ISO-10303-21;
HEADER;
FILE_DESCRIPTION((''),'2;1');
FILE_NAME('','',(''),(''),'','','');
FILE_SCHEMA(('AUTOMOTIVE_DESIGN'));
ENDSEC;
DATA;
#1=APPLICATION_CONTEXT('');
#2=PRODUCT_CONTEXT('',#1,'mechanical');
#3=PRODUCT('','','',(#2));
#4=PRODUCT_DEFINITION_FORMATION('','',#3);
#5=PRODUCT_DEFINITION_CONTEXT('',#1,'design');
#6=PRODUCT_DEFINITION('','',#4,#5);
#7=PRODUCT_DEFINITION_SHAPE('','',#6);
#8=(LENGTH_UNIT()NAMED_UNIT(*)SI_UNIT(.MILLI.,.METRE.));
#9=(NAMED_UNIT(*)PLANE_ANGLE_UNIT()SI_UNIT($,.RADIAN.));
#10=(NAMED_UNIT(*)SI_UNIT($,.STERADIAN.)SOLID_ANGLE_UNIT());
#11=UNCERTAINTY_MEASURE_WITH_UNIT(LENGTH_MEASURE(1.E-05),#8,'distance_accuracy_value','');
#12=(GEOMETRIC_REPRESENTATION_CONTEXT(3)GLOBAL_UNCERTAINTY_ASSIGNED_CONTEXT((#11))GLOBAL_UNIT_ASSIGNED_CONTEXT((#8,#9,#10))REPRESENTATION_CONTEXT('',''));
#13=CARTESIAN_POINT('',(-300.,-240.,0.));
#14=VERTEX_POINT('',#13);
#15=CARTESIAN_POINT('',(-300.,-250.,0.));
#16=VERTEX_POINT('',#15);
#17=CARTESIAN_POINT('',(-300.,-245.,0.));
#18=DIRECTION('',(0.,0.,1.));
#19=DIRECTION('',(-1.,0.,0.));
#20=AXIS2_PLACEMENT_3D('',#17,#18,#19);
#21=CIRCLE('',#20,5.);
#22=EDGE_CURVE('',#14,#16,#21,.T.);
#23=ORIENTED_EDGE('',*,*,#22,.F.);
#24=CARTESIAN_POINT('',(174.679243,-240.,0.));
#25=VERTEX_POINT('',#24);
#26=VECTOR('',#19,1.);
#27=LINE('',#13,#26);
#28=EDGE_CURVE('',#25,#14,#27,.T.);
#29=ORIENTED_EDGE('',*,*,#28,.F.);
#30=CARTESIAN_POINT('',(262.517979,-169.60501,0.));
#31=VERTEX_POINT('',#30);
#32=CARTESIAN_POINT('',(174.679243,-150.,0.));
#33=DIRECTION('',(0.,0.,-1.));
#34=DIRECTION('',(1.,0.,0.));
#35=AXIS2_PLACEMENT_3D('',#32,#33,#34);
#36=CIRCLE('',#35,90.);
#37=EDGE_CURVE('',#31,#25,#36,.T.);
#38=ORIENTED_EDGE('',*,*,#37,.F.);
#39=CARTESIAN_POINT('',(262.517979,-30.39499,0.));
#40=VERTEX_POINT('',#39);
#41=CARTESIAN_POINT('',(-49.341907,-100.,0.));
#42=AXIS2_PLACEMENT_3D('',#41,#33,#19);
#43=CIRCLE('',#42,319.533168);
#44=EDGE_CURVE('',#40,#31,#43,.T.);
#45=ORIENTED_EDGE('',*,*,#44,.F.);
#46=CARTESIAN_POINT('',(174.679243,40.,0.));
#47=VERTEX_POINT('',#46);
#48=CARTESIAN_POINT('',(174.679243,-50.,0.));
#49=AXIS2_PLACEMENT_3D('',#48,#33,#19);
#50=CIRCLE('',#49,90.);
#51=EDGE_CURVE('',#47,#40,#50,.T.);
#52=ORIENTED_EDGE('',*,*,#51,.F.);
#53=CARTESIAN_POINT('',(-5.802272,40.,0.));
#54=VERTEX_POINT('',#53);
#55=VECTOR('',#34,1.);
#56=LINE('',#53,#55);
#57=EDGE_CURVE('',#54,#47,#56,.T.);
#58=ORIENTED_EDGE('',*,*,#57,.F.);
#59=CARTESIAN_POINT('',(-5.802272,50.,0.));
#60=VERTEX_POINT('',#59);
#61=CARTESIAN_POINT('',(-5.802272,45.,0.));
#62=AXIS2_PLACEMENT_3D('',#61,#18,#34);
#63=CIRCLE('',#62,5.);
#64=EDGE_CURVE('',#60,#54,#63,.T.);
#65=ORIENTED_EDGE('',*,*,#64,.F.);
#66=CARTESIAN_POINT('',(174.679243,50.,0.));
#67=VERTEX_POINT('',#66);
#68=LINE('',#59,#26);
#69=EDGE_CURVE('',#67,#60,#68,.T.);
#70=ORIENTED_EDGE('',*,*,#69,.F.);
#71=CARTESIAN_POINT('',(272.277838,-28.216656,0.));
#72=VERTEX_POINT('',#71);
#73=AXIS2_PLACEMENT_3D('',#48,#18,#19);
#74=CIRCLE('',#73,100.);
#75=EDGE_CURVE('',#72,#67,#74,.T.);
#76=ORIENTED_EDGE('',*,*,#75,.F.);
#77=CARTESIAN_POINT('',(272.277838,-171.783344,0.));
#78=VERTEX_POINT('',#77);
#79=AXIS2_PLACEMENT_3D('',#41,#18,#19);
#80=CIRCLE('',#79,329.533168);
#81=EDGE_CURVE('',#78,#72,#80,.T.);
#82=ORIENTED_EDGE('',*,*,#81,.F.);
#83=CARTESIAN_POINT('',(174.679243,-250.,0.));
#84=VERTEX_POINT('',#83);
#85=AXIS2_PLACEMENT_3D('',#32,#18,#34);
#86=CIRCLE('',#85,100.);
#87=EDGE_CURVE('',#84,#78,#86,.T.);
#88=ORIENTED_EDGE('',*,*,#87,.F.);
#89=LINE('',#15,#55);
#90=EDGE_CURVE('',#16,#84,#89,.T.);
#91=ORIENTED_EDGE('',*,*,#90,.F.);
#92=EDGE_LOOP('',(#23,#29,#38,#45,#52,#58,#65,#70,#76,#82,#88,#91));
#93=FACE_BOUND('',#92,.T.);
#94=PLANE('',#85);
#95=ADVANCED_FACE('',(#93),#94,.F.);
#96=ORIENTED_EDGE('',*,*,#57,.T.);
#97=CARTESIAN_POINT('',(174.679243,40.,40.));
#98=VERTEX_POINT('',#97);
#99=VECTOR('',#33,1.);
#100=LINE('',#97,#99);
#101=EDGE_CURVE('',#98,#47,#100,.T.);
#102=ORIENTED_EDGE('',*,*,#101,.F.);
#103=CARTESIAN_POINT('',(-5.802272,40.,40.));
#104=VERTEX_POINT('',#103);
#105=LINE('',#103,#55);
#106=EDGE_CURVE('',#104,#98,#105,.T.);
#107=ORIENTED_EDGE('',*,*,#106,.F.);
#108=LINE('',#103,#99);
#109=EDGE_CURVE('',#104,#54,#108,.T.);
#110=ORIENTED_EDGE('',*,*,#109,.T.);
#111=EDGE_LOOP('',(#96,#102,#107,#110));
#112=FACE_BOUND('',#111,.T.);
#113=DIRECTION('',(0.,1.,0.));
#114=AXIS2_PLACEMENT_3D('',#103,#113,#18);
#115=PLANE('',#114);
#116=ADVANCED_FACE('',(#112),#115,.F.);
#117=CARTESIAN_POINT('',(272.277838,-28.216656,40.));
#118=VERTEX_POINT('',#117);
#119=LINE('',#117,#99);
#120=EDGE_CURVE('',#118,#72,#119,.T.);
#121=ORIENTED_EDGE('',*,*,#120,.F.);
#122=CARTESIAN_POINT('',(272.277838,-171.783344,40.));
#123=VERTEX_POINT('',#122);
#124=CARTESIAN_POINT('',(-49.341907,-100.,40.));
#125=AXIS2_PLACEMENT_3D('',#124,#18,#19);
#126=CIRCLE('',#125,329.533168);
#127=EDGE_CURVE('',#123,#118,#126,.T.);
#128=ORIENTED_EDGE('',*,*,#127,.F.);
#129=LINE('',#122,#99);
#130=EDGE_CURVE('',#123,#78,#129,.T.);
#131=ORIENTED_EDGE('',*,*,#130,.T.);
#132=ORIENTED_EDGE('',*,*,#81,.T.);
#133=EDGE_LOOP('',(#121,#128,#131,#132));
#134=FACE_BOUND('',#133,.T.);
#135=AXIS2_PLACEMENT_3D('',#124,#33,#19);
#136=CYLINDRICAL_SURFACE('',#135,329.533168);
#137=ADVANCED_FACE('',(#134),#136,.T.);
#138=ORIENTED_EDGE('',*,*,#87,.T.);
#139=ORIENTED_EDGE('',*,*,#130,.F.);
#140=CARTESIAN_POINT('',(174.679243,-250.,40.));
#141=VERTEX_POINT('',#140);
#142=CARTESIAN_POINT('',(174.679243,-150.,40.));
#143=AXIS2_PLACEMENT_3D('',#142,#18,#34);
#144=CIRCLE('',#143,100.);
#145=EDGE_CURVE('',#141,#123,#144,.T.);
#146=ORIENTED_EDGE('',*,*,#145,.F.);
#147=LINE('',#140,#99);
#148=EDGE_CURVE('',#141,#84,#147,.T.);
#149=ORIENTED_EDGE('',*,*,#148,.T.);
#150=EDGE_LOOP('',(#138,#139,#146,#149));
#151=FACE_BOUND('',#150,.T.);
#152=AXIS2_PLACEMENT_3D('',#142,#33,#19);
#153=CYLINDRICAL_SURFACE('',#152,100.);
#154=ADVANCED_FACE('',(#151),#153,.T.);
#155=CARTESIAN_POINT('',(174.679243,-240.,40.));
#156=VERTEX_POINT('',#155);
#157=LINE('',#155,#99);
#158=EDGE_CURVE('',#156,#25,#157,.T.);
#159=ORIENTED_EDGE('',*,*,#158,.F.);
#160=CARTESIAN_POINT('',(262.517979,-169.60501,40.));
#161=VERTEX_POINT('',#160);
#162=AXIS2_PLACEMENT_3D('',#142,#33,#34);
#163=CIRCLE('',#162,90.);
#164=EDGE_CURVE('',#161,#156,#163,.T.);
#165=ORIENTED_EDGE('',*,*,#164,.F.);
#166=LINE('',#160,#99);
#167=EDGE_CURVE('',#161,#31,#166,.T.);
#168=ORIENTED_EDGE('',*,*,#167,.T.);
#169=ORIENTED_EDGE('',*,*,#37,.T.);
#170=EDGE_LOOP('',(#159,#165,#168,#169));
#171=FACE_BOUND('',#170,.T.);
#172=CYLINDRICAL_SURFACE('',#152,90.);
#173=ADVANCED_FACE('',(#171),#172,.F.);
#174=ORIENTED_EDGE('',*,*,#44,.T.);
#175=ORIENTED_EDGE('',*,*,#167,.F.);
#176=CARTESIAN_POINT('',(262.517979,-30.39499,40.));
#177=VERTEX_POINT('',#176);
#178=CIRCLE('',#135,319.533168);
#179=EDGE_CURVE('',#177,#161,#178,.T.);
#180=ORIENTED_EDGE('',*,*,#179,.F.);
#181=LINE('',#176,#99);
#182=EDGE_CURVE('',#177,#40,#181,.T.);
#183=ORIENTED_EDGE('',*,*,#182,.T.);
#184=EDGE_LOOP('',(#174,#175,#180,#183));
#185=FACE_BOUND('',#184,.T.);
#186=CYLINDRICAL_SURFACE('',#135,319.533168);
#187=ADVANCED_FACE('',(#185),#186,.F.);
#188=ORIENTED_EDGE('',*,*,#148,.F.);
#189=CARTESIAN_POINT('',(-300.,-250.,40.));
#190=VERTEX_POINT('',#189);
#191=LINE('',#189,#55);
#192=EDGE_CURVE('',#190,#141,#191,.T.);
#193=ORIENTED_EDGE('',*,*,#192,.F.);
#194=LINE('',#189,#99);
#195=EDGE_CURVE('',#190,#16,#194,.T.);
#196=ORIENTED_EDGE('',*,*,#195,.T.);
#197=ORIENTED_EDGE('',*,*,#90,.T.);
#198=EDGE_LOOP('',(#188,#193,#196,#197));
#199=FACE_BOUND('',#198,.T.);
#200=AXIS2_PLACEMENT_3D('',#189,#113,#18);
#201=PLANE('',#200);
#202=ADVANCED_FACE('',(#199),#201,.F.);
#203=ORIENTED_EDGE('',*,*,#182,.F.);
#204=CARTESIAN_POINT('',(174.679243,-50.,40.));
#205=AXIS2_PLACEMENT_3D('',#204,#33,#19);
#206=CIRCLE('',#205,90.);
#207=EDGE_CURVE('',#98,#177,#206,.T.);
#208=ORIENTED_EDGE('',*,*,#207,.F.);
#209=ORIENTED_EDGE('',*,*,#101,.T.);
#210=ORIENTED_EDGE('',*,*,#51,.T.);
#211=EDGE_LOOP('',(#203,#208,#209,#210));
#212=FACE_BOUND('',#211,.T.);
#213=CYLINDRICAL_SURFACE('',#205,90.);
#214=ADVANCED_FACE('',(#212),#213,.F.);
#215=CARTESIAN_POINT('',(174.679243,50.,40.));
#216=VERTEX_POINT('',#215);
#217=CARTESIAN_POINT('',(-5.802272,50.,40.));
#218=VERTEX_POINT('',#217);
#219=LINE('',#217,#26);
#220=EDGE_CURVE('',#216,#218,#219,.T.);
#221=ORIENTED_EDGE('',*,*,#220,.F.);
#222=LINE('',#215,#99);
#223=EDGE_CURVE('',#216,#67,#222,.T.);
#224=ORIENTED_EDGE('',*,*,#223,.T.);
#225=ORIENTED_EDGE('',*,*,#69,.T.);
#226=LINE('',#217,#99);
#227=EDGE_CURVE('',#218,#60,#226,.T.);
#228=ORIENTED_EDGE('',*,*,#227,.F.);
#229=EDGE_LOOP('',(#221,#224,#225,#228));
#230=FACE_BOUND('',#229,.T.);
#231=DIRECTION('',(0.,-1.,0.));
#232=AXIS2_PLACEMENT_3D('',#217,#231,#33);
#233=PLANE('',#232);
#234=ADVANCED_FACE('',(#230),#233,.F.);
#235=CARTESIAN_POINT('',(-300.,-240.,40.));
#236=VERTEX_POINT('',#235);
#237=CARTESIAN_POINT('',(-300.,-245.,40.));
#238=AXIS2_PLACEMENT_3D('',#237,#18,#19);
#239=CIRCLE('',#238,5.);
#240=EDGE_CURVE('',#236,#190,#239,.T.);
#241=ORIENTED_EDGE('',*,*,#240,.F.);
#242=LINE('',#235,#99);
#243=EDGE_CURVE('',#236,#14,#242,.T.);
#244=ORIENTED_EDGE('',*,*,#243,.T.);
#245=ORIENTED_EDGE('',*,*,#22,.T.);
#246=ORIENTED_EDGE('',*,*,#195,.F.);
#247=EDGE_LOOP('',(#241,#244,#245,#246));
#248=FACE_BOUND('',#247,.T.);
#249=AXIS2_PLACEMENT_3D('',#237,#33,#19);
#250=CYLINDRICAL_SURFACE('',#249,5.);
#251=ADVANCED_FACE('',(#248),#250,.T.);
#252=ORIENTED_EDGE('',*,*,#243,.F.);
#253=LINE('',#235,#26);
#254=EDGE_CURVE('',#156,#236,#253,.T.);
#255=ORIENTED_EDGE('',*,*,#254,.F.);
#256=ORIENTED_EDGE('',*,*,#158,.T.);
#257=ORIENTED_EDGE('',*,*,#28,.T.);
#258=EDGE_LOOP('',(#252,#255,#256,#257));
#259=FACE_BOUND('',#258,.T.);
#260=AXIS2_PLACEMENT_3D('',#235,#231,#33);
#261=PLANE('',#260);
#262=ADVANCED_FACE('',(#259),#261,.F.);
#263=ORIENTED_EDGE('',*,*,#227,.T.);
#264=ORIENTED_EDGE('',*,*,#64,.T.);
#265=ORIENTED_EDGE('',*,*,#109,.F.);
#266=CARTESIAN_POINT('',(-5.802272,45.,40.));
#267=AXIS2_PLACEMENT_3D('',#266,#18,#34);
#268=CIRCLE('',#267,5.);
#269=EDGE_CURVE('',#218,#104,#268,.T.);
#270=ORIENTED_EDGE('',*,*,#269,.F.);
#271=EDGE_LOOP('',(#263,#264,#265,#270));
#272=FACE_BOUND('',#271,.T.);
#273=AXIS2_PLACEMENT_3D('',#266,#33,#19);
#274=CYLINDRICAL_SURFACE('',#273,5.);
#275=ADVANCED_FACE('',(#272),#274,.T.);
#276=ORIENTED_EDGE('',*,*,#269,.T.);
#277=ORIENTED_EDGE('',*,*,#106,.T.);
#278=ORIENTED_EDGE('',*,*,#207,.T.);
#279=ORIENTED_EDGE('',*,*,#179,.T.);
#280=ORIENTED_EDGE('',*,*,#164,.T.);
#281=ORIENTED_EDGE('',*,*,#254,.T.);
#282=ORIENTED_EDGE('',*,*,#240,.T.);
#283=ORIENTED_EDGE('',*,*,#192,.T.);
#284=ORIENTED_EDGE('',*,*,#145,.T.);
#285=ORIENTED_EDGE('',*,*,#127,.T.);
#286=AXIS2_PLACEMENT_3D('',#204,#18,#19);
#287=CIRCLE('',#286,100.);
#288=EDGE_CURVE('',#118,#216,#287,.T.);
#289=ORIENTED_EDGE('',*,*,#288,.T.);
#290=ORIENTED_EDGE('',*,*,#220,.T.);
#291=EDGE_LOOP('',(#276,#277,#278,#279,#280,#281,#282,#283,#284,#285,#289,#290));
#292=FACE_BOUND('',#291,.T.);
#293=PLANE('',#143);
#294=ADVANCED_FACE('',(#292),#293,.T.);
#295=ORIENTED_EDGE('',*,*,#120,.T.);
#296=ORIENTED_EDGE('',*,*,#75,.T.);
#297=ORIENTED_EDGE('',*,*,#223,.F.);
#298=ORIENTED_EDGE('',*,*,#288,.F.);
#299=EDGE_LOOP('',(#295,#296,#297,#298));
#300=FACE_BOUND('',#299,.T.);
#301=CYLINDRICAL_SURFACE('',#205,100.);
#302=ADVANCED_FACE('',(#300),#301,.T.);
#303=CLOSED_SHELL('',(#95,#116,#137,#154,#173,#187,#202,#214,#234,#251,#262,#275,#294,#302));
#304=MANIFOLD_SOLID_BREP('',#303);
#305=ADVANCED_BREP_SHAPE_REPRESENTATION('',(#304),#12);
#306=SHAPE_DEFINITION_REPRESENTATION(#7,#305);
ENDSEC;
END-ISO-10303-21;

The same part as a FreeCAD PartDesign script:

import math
import FreeCAD as App
import Part
import Sketcher

V = App.Vector

doc = App.newDocument("Part")
body = doc.addObject("PartDesign::Body", "Body")

# Sketch on XY plane
sketch1 = body.newObject("Sketcher::SketchObject", "Sketch")
sketch1.AttachmentSupport = (doc.getObject("XY_Plane"), [""])
sketch1.MapMode = "FlatFace"
sketch1.addGeometry(Part.LineSegment(V(175, 50, 0), V(-6, 50, 0)), False)
sketch1.addGeometry(Part.ArcOfCircle(Part.Circle(V(-6, 45, 0), V(0, 0, 1), 5), math.radians(90), math.radians(270)), False)
sketch1.addGeometry(Part.LineSegment(V(-6, 40, 0), V(175, 40, 0)), False)
sketch1.addGeometry(Part.ArcOfCircle(Part.Circle(V(175, -50, 0), V(0, 0, 1), 90), math.radians(13), math.radians(90)), False)
sketch1.addGeometry(Part.ArcOfCircle(Part.Circle(V(-49, -100, 0), V(0, 0, 1), 320), math.radians(-13), math.radians(13)), False)
sketch1.addGeometry(Part.ArcOfCircle(Part.Circle(V(175, -150, 0), V(0, 0, 1), 90), math.radians(-90), math.radians(-13)), False)
sketch1.addGeometry(Part.LineSegment(V(175, -240, 0), V(-300, -240, 0)), False)
sketch1.addGeometry(Part.ArcOfCircle(Part.Circle(V(-300, -245, 0), V(0, 0, 1), 5), math.radians(90), math.radians(270)), False)
sketch1.addGeometry(Part.LineSegment(V(-300, -250, 0), V(175, -250, 0)), False)
sketch1.addGeometry(Part.ArcOfCircle(Part.Circle(V(175, -150, 0), V(0, 0, 1), 100), math.radians(-90), math.radians(-13)), False)
sketch1.addGeometry(Part.ArcOfCircle(Part.Circle(V(-49, -100, 0), V(0, 0, 1), 330), math.radians(-13), math.radians(13)), False)
sketch1.addGeometry(Part.ArcOfCircle(Part.Circle(V(175, -50, 0), V(0, 0, 1), 100), math.radians(13), math.radians(90)), False)
sketch1.addConstraint(Sketcher.Constraint("Tangent", 0, 2, 1, 1))
sketch1.addConstraint(Sketcher.Constraint("Tangent", 1, 2, 2, 1))
sketch1.addConstraint(Sketcher.Constraint("Tangent", 2, 2, 3, 2))
sketch1.addConstraint(Sketcher.Constraint("Tangent", 3, 1, 4, 2))
sketch1.addConstraint(Sketcher.Constraint("Tangent", 4, 1, 5, 2))
sketch1.addConstraint(Sketcher.Constraint("Tangent", 5, 1, 6, 1))
sketch1.addConstraint(Sketcher.Constraint("Tangent", 6, 2, 7, 1))
sketch1.addConstraint(Sketcher.Constraint("Tangent", 7, 2, 8, 1))
sketch1.addConstraint(Sketcher.Constraint("Tangent", 8, 2, 9, 1))
sketch1.addConstraint(Sketcher.Constraint("Tangent", 9, 2, 10, 1))
sketch1.addConstraint(Sketcher.Constraint("Tangent", 10, 2, 11, 1))
sketch1.addConstraint(Sketcher.Constraint("Tangent", 11, 2, 0, 1))
sketch1.addConstraint(Sketcher.Constraint("Horizontal", 0))
sketch1.addConstraint(Sketcher.Constraint("Horizontal", 2))
sketch1.addConstraint(Sketcher.Constraint("Horizontal", 6))
sketch1.addConstraint(Sketcher.Constraint("Horizontal", 8))
sketch1.addConstraint(Sketcher.Constraint("Coincident", 9, 3, 5, 3))
sketch1.addConstraint(Sketcher.Constraint("Coincident", 10, 3, 4, 3))
sketch1.addConstraint(Sketcher.Constraint("Coincident", 11, 3, 3, 3))
sketch1.addConstraint(Sketcher.Constraint("Equal", 3, 5))
sketch1.addConstraint(Sketcher.Constraint("Vertical", 3, 3, 5, 3))
sketch1.addConstraint(Sketcher.Constraint("Radius", 1, 5.0))
sketch1.addConstraint(Sketcher.Constraint("Radius", 3, 90.0))
sketch1.addConstraint(Sketcher.Constraint("DistanceY", -1, 1, 1, 3, 45.0))
sketch1.addConstraint(Sketcher.Constraint("DistanceY", 4, 3, -1, 1, 100.0))
sketch1.addConstraint(Sketcher.Constraint("DistanceX", 7, 3, -1, 1, 300.0))
sketch1.addConstraint(Sketcher.Constraint("Radius", 4, 319.533168))
sketch1.addConstraint(Sketcher.Constraint("DistanceX", 0, 2, 0, 1, 180.481515))
sketch1.addConstraint(Sketcher.Constraint("DistanceX", 6, 2, 6, 1, 474.679243))
pad1 = body.newObject("PartDesign::Pad", "Pad")
pad1.Profile = sketch1
pad1.Length = 40

doc.recompute()
